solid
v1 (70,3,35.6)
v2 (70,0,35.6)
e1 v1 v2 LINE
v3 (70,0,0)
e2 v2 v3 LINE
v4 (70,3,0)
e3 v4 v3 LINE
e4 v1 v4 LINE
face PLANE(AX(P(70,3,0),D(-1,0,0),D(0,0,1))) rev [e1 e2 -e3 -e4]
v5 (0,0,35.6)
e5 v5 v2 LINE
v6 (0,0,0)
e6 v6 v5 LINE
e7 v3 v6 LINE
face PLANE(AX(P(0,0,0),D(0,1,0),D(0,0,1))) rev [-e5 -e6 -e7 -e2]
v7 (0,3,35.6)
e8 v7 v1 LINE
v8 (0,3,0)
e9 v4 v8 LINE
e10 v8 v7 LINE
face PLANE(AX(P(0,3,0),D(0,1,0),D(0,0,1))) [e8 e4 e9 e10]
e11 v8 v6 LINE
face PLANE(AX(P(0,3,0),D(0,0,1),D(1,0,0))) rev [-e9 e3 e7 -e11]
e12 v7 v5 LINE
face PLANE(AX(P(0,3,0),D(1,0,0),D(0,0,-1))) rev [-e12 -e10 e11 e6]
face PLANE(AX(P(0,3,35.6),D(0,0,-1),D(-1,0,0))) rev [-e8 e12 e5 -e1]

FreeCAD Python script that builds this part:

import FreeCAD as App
import Part
import Sketcher
from FreeCAD import Vector
Q = App.Units.Quantity

doc = App.newDocument("Part")
body = doc.addObject("PartDesign::Body", "Body")

# Sketch on XZ plane
sketch1 = doc.addObject("Sketcher::SketchObject", "Sketch")
body.addObject(sketch1)
sketch1.AttachmentSupport = (doc.XZ_Plane, [""])
sketch1.MapMode = "FlatFace"
sketch1.addGeometry(Part.LineSegment(Vector(0, 0, 0), Vector(0, 36, 0)), False)
sketch1.addGeometry(Part.LineSegment(Vector(0, 36, 0), Vector(70, 36, 0)), False)
sketch1.addGeometry(Part.LineSegment(Vector(70, 36, 0), Vector(70, 0, 0)), False)
sketch1.addGeometry(Part.LineSegment(Vector(70, 0, 0), Vector(0, 0, 0)), False)
sketch1.addConstraint(Sketcher.Constraint("Coincident", 0, 2, 1, 1))
sketch1.addConstraint(Sketcher.Constraint("Coincident", 1, 2, 2, 1))
sketch1.addConstraint(Sketcher.Constraint("Coincident", 2, 2, 3, 1))
sketch1.addConstraint(Sketcher.Constraint("Coincident", 3, 2, 0, 1))
sketch1.addConstraint(Sketcher.Constraint("Vertical", 0))
sketch1.addConstraint(Sketcher.Constraint("Horizontal", 1))
sketch1.addConstraint(Sketcher.Constraint("Vertical", 2))
sketch1.addConstraint(Sketcher.Constraint("Horizontal", 3))
sketch1.addConstraint(Sketcher.Constraint("Coincident", 3, 2, -1, 1))
sketch1.addConstraint(Sketcher.Constraint("DistanceX", 1, 1, 1, 2, Q("70 mm")))
sketch1.addConstraint(Sketcher.Constraint("DistanceY", 0, 1, 0, 2, Q("35.6 mm")))
pad1 = doc.addObject("PartDesign::Pad", "Pad")
body.addObject(pad1)
pad1.Profile = sketch1
pad1.Length = 3
pad1.Reversed = True

doc.recompute()
